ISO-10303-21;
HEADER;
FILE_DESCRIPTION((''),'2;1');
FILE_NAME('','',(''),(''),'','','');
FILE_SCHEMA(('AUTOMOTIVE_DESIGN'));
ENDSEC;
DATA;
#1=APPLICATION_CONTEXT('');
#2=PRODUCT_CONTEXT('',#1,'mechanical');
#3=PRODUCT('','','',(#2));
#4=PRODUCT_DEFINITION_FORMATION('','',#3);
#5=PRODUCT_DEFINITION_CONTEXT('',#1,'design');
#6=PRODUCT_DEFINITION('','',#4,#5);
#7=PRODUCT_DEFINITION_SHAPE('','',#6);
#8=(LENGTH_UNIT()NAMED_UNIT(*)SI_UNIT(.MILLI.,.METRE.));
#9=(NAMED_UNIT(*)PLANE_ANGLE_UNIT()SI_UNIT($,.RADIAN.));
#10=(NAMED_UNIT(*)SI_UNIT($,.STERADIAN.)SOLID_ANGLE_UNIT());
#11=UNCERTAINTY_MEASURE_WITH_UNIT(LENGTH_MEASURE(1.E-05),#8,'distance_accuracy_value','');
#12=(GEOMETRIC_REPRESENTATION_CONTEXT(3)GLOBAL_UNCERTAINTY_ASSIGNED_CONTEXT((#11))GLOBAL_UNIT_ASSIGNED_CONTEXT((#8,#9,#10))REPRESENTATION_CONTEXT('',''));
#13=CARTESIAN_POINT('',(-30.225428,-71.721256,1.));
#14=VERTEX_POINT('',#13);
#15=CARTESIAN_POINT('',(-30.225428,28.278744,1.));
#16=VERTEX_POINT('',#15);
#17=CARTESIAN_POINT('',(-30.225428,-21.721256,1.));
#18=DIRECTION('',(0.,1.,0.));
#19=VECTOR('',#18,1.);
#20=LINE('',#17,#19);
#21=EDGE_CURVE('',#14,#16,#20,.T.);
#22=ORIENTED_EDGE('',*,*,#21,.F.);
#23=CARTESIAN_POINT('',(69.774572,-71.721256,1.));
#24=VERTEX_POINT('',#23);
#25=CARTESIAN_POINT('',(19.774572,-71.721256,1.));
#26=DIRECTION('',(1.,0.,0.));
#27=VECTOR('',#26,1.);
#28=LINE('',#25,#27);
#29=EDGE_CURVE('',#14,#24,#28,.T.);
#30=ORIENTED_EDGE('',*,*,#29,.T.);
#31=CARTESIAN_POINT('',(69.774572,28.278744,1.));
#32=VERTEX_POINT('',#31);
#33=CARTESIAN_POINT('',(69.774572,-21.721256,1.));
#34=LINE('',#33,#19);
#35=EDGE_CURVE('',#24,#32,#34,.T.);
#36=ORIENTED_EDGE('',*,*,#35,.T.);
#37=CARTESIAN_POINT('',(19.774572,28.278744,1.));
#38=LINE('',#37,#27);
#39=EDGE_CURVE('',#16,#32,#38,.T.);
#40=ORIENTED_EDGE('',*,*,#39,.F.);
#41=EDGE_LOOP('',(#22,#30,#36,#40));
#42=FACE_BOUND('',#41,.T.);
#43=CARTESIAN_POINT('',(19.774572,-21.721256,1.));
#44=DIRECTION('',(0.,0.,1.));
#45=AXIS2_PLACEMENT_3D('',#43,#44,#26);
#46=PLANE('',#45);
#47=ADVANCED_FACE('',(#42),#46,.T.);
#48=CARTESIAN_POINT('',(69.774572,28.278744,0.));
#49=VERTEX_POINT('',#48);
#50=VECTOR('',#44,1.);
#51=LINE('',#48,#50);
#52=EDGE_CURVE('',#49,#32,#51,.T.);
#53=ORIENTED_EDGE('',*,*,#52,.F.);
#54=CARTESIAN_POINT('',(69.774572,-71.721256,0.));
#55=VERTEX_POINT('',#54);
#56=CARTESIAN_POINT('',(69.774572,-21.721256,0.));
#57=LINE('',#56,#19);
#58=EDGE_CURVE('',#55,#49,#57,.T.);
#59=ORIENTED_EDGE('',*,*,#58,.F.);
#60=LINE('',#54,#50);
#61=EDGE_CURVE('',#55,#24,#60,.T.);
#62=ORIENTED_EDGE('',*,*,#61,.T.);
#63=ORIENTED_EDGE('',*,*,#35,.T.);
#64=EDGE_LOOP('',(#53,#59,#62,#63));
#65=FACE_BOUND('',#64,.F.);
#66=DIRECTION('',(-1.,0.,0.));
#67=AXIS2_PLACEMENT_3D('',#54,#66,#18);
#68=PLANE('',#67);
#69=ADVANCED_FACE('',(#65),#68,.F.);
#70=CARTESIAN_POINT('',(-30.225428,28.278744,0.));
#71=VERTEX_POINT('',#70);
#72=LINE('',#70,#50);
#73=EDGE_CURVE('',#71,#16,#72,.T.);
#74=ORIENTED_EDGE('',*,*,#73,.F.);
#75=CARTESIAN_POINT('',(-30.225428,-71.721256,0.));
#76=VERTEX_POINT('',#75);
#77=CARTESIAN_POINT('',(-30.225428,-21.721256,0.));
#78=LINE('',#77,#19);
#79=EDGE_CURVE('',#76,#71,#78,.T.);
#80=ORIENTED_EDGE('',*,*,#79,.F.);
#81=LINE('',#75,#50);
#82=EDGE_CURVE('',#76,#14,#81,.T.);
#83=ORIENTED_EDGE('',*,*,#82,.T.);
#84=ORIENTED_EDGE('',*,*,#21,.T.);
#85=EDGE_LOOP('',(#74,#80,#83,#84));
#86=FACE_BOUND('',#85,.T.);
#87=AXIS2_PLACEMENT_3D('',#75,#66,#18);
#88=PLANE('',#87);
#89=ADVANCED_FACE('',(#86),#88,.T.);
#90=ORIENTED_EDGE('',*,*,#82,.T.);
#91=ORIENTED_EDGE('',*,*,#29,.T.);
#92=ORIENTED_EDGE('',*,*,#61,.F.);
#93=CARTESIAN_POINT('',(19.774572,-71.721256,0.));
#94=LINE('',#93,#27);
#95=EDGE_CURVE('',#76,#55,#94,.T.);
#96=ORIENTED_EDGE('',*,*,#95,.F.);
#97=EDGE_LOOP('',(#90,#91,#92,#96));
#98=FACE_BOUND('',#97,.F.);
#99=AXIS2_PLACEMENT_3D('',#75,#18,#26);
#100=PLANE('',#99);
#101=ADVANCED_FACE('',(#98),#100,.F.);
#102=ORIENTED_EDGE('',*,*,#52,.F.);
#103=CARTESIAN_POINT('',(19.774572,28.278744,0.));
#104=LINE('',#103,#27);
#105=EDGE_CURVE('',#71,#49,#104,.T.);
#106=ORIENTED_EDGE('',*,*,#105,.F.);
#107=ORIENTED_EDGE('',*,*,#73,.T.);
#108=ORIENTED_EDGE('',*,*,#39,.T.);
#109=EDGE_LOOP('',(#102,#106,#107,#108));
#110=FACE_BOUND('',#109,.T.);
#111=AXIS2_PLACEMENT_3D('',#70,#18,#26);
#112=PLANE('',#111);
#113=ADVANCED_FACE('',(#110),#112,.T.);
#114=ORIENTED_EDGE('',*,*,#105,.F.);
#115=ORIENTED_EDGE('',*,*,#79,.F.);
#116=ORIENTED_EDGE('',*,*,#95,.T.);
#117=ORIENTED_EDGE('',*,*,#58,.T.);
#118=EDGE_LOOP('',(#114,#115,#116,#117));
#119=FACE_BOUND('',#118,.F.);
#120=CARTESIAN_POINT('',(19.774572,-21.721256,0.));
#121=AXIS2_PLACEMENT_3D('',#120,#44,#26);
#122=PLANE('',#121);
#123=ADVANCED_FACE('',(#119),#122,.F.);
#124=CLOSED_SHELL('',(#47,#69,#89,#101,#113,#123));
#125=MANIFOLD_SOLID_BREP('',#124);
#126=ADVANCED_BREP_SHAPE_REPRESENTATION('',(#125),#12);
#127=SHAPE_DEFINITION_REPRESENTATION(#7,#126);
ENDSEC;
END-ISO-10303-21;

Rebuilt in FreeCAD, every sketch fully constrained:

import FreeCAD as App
import Part
import Sketcher
from FreeCAD import Vector


def add_polygon(sketch, points):
    """Adds a closed chain of lines whose ends are joined by coincident constraints."""
    first, n = sketch.GeometryCount, len(points)
    for a, b in zip(points, points[1:] + points[:1]):
        sketch.addGeometry(Part.LineSegment(App.Vector(*a, 0), App.Vector(*b, 0)), False)
    for i in range(n):
        sketch.addConstraint(Sketcher.Constraint("Coincident", first + i, 2, first + (i + 1) % n, 1))

doc = App.newDocument("Part")
body = doc.addObject("PartDesign::Body", "Body")

sketch1 = doc.addObject("Sketcher::SketchObject", "Sketch")
body.addObject(sketch1)
sketch1.AttachmentSupport = (doc.XY_Plane, [""])
sketch1.MapMode = "FlatFace"
add_polygon(sketch1, [(-30, 28), (-30, -72), (70, -72), (70, 28)])
sketch1.addConstraint(Sketcher.Constraint("Vertical", 0))
sketch1.addConstraint(Sketcher.Constraint("Horizontal", 1))
sketch1.addConstraint(Sketcher.Constraint("Vertical", 2))
sketch1.addConstraint(Sketcher.Constraint("Horizontal", 3))
sketch1.addConstraint(Sketcher.Constraint("Equal", 3, 0))
sketch1.addConstraint(Sketcher.Constraint("DistanceX", 1, 1, 1, 2, 100.0))
sketch1.addConstraint(Sketcher.Constraint("DistanceX", 0, 2, -1, 1, 30.225428))
sketch1.addConstraint(Sketcher.Constraint("DistanceY", 0, 2, -1, 1, 71.721256))
pad1 = doc.addObject("PartDesign::Pad", "Pad")
body.addObject(pad1)
pad1.Profile = sketch1
pad1.Length = 1

doc.recompute()
